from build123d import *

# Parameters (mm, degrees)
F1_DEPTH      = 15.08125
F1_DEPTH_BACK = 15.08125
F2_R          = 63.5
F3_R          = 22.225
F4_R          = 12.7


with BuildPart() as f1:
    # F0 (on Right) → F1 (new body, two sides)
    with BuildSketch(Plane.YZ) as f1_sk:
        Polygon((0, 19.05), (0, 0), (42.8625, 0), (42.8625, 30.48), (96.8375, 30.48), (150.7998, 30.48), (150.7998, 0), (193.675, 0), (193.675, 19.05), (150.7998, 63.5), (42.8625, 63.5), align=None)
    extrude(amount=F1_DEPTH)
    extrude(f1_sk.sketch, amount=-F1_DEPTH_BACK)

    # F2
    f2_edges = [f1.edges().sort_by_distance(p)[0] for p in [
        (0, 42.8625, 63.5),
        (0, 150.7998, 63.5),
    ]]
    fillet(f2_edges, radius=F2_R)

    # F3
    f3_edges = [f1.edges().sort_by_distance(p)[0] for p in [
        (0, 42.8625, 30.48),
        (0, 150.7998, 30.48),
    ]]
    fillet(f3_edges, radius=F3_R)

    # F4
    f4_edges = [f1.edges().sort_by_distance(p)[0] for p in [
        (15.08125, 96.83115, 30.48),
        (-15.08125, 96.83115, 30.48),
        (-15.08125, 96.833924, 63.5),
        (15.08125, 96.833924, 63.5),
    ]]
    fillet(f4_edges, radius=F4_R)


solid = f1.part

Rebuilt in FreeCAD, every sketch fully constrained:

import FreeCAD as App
import Part
import Sketcher
Q = App.Units.Quantity


def edges_at(feature, points):
    """Names of the edges that pass closest to the given points."""
    edges = feature.Shape.Edges
    near = lambda p: min(range(len(edges)), key=lambda i: edges[i].distToShape(Part.Vertex(*p))[0])
    return sorted({f"Edge{near(p) + 1}" for p in points})

doc = App.newDocument("Part")
body = doc.addObject("PartDesign::Body", "Body")

# Sketch on YZ plane
sketch1 = body.newObject("Sketcher::SketchObject", "Sketch")
sketch1.AttachmentSupport = (doc.getObject("YZ_Plane"), [""])
sketch1.MapMode = "FlatFace"
sketch1.addGeometry(Part.LineSegment(App.Vector(0, 19, 0), App.Vector(0, 0, 0)), False)
sketch1.addGeometry(Part.LineSegment(App.Vector(0, 0, 0), App.Vector(43, 0, 0)), False)
sketch1.addGeometry(Part.LineSegment(App.Vector(43, 0, 0), App.Vector(43, 30, 0)), False)
sketch1.addGeometry(Part.LineSegment(App.Vector(43, 30, 0), App.Vector(151, 30, 0)), False)
sketch1.addGeometry(Part.LineSegment(App.Vector(151, 30, 0), App.Vector(151, 0, 0)), False)
sketch1.addGeometry(Part.LineSegment(App.Vector(151, 0, 0), App.Vector(194, 0, 0)), False)
sketch1.addGeometry(Part.LineSegment(App.Vector(194, 0, 0), App.Vector(194, 19, 0)), False)
sketch1.addGeometry(Part.LineSegment(App.Vector(194, 19, 0), App.Vector(151, 64, 0)), False)
sketch1.addGeometry(Part.LineSegment(App.Vector(151, 64, 0), App.Vector(43, 64, 0)), False)
sketch1.addGeometry(Part.LineSegment(App.Vector(43, 64, 0), App.Vector(0, 19, 0)), False)
sketch1.addConstraint(Sketcher.Constraint("Coincident", 0, 2, 1, 1))
sketch1.addConstraint(Sketcher.Constraint("Coincident", 1, 2, 2, 1))
sketch1.addConstraint(Sketcher.Constraint("Coincident", 2, 2, 3, 1))
sketch1.addConstraint(Sketcher.Constraint("Coincident", 3, 2, 4, 1))
sketch1.addConstraint(Sketcher.Constraint("Coincident", 4, 2, 5, 1))
sketch1.addConstraint(Sketcher.Constraint("Coincident", 5, 2, 6, 1))
sketch1.addConstraint(Sketcher.Constraint("Coincident", 6, 2, 7, 1))
sketch1.addConstraint(Sketcher.Constraint("Coincident", 7, 2, 8, 1))
sketch1.addConstraint(Sketcher.Constraint("Coincident", 8, 2, 9, 1))
sketch1.addConstraint(Sketcher.Constraint("Coincident", 9, 2, 0, 1))
sketch1.addConstraint(Sketcher.Constraint("Vertical", 0))
sketch1.addConstraint(Sketcher.Constraint("Horizontal", 1))
sketch1.addConstraint(Sketcher.Constraint("Vertical", 2))
sketch1.addConstraint(Sketcher.Constraint("Horizontal", 3))
sketch1.addConstraint(Sketcher.Constraint("Vertical", 4))
sketch1.addConstraint(Sketcher.Constraint("Horizontal", 5))
sketch1.addConstraint(Sketcher.Constraint("Vertical", 6))
sketch1.addConstraint(Sketcher.Constraint("Horizontal", 8))
sketch1.addConstraint(Sketcher.Constraint("Coincident", 0, 2, -1, 1))
sketch1.addConstraint(Sketcher.Constraint("PointOnObject", 4, 2, -1))
sketch1.addConstraint(Sketcher.Constraint("Horizontal", 6, 2, 9, 2))
sketch1.addConstraint(Sketcher.Constraint("Vertical", 4, 2, 7, 2))
sketch1.addConstraint(Sketcher.Constraint("Vertical", 2, 2, 8, 2))
sketch1.addConstraint(Sketcher.Constraint("DistanceY", 2, 1, 2, 2, Q("1.2 in")))
sketch1.addConstraint(Sketcher.Constraint("DistanceY", 0, 2, 0, 1, Q("0.75 in")))
sketch1.addConstraint(Sketcher.Constraint("DistanceY", -1, 1, 7, 2, Q("2.5 in")))
sketch1.addConstraint(Sketcher.Constraint("DistanceX", 1, 1, 1, 2, Q("1.6875 in")))
sketch1.addConstraint(Sketcher.Constraint("DistanceX", 5, 1, 5, 2, Q("1.688 in")))
sketch1.addConstraint(Sketcher.Constraint("DistanceX", 3, 1, 3, 2, Q("4.2495 in")))
pad1 = body.newObject("PartDesign::Pad", "Pad")
pad1.Profile = sketch1
pad1.Type = "TwoLengths"
pad1.Length = Q("0.59375 in")
pad1.Length2 = Q("0.59375 in")
doc.recompute()

fillet = body.newObject("PartDesign::Fillet", "Fillet")
fillet.Base = (pad1, edges_at(pad1, [(0, 42.862, 63.5), (0, 150.8, 63.5)]))
fillet.Radius = Q("2.5 in")
doc.recompute()

fillet2 = body.newObject("PartDesign::Fillet", "Fillet001")
fillet2.Base = (fillet, edges_at(fillet, [(0, 42.862, 30.48), (0, 150.8, 30.48)]))
fillet2.Radius = Q("0.875 in")
doc.recompute()

fillet3 = body.newObject("PartDesign::Fillet", "Fillet002")
fillet3.Base = (fillet2, edges_at(fillet2, [
    (15.081, 96.831, 30.48),
    (-15.081, 96.831, 30.48),
    (-15.081, 96.834, 63.5),
    (15.081, 96.834, 63.5),
]))
fillet3.Radius = Q("0.5 in")

doc.recompute()
